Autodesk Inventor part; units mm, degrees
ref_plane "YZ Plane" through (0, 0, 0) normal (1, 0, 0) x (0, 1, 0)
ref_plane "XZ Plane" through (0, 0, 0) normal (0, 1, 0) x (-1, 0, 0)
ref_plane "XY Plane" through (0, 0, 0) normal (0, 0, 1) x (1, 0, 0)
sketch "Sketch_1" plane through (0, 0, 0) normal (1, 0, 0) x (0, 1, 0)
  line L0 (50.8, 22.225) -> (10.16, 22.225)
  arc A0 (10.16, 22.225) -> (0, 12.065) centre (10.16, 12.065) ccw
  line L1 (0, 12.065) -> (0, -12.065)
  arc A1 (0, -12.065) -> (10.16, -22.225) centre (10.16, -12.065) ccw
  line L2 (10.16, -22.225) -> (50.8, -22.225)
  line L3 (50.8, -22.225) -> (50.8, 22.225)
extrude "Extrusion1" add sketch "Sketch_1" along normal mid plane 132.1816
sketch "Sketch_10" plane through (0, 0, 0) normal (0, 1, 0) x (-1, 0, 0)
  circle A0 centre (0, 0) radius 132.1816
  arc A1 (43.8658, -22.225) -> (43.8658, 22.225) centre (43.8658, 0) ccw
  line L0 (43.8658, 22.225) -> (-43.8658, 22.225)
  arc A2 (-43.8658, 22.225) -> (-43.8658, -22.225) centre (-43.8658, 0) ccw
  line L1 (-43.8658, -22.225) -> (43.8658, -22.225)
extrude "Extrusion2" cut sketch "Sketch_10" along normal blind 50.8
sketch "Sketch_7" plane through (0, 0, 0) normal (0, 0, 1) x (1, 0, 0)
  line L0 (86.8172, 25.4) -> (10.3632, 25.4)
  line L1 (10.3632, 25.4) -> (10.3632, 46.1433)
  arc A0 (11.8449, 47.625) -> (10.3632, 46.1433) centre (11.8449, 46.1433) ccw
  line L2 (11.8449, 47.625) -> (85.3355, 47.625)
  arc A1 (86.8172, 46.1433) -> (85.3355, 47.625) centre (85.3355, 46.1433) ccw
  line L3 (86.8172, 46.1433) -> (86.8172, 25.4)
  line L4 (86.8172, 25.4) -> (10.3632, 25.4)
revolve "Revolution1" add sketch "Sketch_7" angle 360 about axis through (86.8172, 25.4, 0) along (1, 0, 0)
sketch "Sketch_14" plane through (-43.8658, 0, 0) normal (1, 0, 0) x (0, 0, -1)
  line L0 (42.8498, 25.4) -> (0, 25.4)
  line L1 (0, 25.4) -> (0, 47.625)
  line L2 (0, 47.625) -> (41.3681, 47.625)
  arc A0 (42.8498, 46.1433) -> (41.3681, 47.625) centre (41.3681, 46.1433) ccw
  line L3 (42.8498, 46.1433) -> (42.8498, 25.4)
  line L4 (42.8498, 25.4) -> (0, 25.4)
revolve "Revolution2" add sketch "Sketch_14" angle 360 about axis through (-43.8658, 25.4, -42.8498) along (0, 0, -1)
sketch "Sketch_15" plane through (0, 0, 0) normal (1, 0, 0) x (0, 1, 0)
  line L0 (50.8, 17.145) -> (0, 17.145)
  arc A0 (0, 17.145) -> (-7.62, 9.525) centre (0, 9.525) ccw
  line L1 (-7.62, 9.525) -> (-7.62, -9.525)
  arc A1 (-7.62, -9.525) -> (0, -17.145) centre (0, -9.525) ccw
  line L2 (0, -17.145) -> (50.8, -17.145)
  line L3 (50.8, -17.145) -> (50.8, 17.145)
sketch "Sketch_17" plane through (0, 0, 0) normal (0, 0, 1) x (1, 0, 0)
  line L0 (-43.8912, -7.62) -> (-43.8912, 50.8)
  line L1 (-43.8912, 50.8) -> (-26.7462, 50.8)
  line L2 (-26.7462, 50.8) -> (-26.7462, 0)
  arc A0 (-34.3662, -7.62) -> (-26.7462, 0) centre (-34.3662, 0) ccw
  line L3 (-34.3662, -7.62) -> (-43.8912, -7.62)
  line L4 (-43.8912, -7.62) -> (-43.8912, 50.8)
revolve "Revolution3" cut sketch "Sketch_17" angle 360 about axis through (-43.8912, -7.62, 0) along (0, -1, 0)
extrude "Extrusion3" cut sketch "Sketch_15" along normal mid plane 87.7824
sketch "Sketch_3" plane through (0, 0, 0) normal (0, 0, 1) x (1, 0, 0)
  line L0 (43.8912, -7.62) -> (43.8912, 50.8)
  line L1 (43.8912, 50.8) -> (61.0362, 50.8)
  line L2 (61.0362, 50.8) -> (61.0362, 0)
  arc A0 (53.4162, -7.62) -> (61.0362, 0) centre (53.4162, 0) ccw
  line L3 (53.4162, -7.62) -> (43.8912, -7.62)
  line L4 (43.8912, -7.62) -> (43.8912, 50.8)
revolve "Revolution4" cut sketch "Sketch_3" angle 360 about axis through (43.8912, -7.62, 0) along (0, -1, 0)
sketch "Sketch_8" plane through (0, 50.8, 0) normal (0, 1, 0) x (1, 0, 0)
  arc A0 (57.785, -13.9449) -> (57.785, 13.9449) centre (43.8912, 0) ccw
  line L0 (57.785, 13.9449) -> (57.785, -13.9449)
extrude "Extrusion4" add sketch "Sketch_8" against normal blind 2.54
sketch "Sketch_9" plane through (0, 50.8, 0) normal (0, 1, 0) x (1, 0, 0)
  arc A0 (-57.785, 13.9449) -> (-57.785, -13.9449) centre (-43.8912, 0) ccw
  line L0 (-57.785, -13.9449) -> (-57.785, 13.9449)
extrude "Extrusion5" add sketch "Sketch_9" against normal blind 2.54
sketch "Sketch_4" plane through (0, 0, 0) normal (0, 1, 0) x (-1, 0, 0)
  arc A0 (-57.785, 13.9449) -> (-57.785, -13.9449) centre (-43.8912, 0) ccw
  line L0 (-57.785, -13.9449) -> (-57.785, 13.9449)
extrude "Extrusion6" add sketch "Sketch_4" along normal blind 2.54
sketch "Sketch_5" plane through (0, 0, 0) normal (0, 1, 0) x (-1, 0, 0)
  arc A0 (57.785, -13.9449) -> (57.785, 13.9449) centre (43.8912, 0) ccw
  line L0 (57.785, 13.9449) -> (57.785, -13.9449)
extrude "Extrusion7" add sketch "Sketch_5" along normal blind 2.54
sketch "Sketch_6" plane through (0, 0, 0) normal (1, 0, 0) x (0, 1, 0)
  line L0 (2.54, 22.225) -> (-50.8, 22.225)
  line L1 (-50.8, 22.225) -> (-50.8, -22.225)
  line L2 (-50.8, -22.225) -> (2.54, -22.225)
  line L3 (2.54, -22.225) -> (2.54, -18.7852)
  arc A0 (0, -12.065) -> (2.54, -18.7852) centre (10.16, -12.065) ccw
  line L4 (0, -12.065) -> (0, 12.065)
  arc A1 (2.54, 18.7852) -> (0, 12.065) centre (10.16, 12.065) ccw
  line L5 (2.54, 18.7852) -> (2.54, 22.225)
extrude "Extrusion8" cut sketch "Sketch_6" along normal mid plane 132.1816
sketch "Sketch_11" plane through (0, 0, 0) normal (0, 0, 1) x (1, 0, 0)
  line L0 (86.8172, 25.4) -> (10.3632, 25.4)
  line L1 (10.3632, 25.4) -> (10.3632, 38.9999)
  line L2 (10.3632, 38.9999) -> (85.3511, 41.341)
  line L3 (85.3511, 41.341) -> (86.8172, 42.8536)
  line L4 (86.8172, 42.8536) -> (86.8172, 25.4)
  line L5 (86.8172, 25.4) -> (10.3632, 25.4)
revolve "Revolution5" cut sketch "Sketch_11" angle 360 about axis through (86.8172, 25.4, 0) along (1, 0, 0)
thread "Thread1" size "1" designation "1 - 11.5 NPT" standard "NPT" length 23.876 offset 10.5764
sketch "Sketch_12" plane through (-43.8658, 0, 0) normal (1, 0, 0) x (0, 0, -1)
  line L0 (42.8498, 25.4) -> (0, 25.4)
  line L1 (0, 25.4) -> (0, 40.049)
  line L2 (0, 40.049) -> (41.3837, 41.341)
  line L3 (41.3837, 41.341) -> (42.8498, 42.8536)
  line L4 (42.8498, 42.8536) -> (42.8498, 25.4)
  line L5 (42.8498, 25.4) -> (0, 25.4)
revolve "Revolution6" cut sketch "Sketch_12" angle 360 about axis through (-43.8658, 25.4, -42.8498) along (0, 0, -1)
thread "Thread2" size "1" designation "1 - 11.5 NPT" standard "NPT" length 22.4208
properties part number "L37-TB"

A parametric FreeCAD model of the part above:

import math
import FreeCAD as App
import Part
import Sketcher

V = App.Vector
Q = App.Units.Quantity


def add_polygon(sketch, points):
    """Adds a closed chain of lines whose ends are joined by coincident constraints."""
    first, n = sketch.GeometryCount, len(points)
    for a, b in zip(points, points[1:] + points[:1]):
        sketch.addGeometry(Part.LineSegment(App.Vector(*a, 0), App.Vector(*b, 0)), False)
    for i in range(n):
        sketch.addConstraint(Sketcher.Constraint("Coincident", first + i, 2, first + (i + 1) % n, 1))

doc = App.newDocument("Part")
body = doc.addObject("PartDesign::Body", "Body")

# Sketch on YZ plane
sketch1 = body.newObject("Sketcher::SketchObject", "Sketch")
sketch1.AttachmentSupport = (doc.getObject("YZ_Plane"), [""])
sketch1.MapMode = "FlatFace"
sketch1.addGeometry([
    Part.LineSegment(V(51, -22, 0), V(51, 22, 0)),  # 0
    Part.LineSegment(V(51, 22, 0), V(10, 22, 0)),  # 1
    Part.ArcOfCircle(Part.Circle(V(10, 12, 0), V(0, 0, 1), 10), math.radians(90), math.radians(180)),  # 2
    Part.LineSegment(V(0, 12, 0), V(0, -12, 0)),  # 3
    Part.ArcOfCircle(Part.Circle(V(10, -12, 0), V(0, 0, 1), 10), math.radians(180), math.radians(270)),  # 4
    Part.LineSegment(V(10, -22, 0), V(51, -22, 0)),  # 5
], False)
sketch1.addConstraint([
    Sketcher.Constraint("Coincident", 0, 2, 1, 1),
    Sketcher.Constraint("Tangent", 1, 2, 2, 1),
    Sketcher.Constraint("Tangent", 2, 2, 3, 1),
    Sketcher.Constraint("Tangent", 3, 2, 4, 1),
    Sketcher.Constraint("Tangent", 4, 2, 5, 1),
    Sketcher.Constraint("Coincident", 5, 2, 0, 1),
    Sketcher.Constraint("Vertical", 0),
    Sketcher.Constraint("Horizontal", 1),
    Sketcher.Constraint("Vertical", 3),
    Sketcher.Constraint("Horizontal", 5),
    Sketcher.Constraint("Equal", 2, 4),
    Sketcher.Constraint("Symmetric", 2, 2, 3, 2, -1, 1),
    Sketcher.Constraint("Radius", 2, Q("0.4 in")),
    Sketcher.Constraint("DistanceX", 1, 2, 1, 1, Q("1.6 in")),
    Sketcher.Constraint("DistanceY", 0, 1, 0, 2, Q("1.75 in")),
])
pad1 = body.newObject("PartDesign::Pad", "Pad")
pad1.Profile = sketch1
pad1.Length = Q("5.204 in")
pad1.Midplane = True

# Sketch on XZ plane
sketch2 = body.newObject("Sketcher::SketchObject", "Sketch001")
sketch2.AttachmentSupport = (doc.getObject("XZ_Plane"), [""])
sketch2.MapMode = "FlatFace"
sketch2.addGeometry([
    Part.Circle(V(0, 0, 0), V(0, 0, 1), 132),  # 0
    Part.ArcOfCircle(Part.Circle(V(-44, 0, 0), V(0, 0, 1), 22), math.radians(90), math.radians(270)),  # 1
    Part.LineSegment(V(-44, -22, 0), V(44, -22, 0)),  # 2
    Part.ArcOfCircle(Part.Circle(V(44, 0, 0), V(0, 0, 1), 22), math.radians(-90), math.radians(90)),  # 3
    Part.LineSegment(V(44, 22, 0), V(-44, 22, 0)),  # 4
], False)
sketch2.addConstraint([
    Sketcher.Constraint("Tangent", 1, 2, 2, 1),
    Sketcher.Constraint("Tangent", 2, 2, 3, 1),
    Sketcher.Constraint("Tangent", 3, 2, 4, 1),
    Sketcher.Constraint("Tangent", 4, 2, 1, 1),
    Sketcher.Constraint("Horizontal", 2),
    Sketcher.Constraint("Horizontal", 4),
    Sketcher.Constraint("Coincident", 0, 3, -1, 1),
    Sketcher.Constraint("Symmetric", 1, 3, 3, 3, -1, 1),
    Sketcher.Constraint("Diameter", 0, Q("10.408 in")),
    Sketcher.Constraint("Radius", 1, Q("0.875 in")),
    Sketcher.Constraint("DistanceX", 2, 1, 2, 2, Q("3.454 in")),
])
pocket1 = body.newObject("PartDesign::Pocket", "Pocket")
pocket1.Profile = sketch2
pocket1.Length = Q("2 in")

# Sketch on XY plane
sketch3 = body.newObject("Sketcher::SketchObject", "Sketch002")
sketch3.AttachmentSupport = (doc.getObject("XY_Plane"), [""])
sketch3.MapMode = "FlatFace"
sketch3.addGeometry([
    Part.LineSegment(V(10.4, 25.4, 0), V(86.8, 25.4, 0)),  # 0
    Part.LineSegment(V(86.8, 25.4, 0), V(86.8, 46.1, 0)),  # 1
    Part.ArcOfCircle(Part.Circle(V(85.3, 46.1, 0), V(0, 0, 1), 1.5), math.radians(0), math.radians(90)),  # 2
    Part.LineSegment(V(85.3, 47.6, 0), V(11.8, 47.6, 0)),  # 3
    Part.ArcOfCircle(Part.Circle(V(11.8, 46.1, 0), V(0, 0, 1), 1.5), math.radians(90), math.radians(180)),  # 4
    Part.LineSegment(V(10.4, 46.1, 0), V(10.4, 25.4, 0)),  # 5
], False)
sketch3.addGeometry(Part.LineSegment(V(10.4, 25.4, 0), V(86.8, 25.4, 0)), True)  # axis
sketch3.addConstraint([
    Sketcher.Constraint("Coincident", 0, 2, 1, 1),
    Sketcher.Constraint("Tangent", 1, 2, 2, 1),
    Sketcher.Constraint("Tangent", 2, 2, 3, 1),
    Sketcher.Constraint("Tangent", 3, 2, 4, 1),
    Sketcher.Constraint("Tangent", 4, 2, 5, 1),
    Sketcher.Constraint("Coincident", 5, 2, 0, 1),
    Sketcher.Constraint("Horizontal", 0),
    Sketcher.Constraint("Vertical", 1),
    Sketcher.Constraint("Horizontal", 3),
    Sketcher.Constraint("Vertical", 5),
    Sketcher.Constraint("Horizontal", 6),
    Sketcher.Constraint("Coincident", 6, 1, 5, 2),
    Sketcher.Constraint("Equal", 2, 4),
    Sketcher.Constraint("Vertical", 1, 2, 6, 2),
    Sketcher.Constraint("DistanceY", -1, 1, 0, 2, Q("1 in")),
    Sketcher.Constraint("DistanceX", 0, 1, 0, 2, Q("3.01 in")),
    Sketcher.Constraint("Radius", 2, Q("1.4817 mm")),
    Sketcher.Constraint("DistanceX", -1, 1, 0, 2, Q("3.418 in")),
    Sketcher.Constraint("DistanceY", -1, 1, 2, 2, Q("1.875 in")),
])
revolution = body.newObject("PartDesign::Revolution", "Revolution")
revolution.Profile = sketch3
revolution.ReferenceAxis = (sketch3, ["Axis0"])
revolution.Angle = 360

# Sketch on YZ plane
sketch4 = body.newObject("Sketcher::SketchObject", "Sketch003")
sketch4.AttachmentSupport = (doc.getObject("YZ_Plane"), [""])
sketch4.MapMode = "FlatFace"
sketch4.AttachmentOffset = App.Placement(V(0, 0, -1.727 * 25.4), App.Rotation())
sketch4.addGeometry([
    Part.LineSegment(V(25.4, 0, 0), V(25.4, -42.8, 0)),  # 0
    Part.LineSegment(V(25.4, -42.8, 0), V(46.1, -42.8, 0)),  # 1
    Part.ArcOfCircle(Part.Circle(V(46.1, -41.4, 0), V(0, 0, 1), 1.5), math.radians(-90), math.radians(0)),  # 2
    Part.LineSegment(V(47.6, -41.4, 0), V(47.6, 0, 0)),  # 3
    Part.LineSegment(V(47.6, 0, 0), V(25.4, 0, 0)),  # 4
], False)
sketch4.addGeometry(Part.LineSegment(V(25.4, 0, 0), V(25.4, -42.8, 0)), True)  # axis
sketch4.addConstraint([
    Sketcher.Constraint("Coincident", 0, 2, 1, 1),
    Sketcher.Constraint("Tangent", 1, 2, 2, 1),
    Sketcher.Constraint("Tangent", 2, 2, 3, 1),
    Sketcher.Constraint("Coincident", 3, 2, 4, 1),
    Sketcher.Constraint("Coincident", 4, 2, 0, 1),
    Sketcher.Constraint("Vertical", 0),
    Sketcher.Constraint("Horizontal", 1),
    Sketcher.Constraint("Vertical", 3),
    Sketcher.Constraint("Horizontal", 4),
    Sketcher.Constraint("Vertical", 5),
    Sketcher.Constraint("Coincident", 5, 1, 4, 2),
    Sketcher.Constraint("PointOnObject", 3, 2, -1),
    Sketcher.Constraint("Horizontal", 1, 2, 5, 2),
    Sketcher.Constraint("DistanceX", -1, 1, 0, 2, Q("1 in")),
    Sketcher.Constraint("DistanceX", 4, 2, 4, 1, Q("0.875 in")),
    Sketcher.Constraint("DistanceY", 0, 2, 0, 1, Q("1.687 in")),
    Sketcher.Constraint("Radius", 2, Q("1.4817 mm")),
])
revolution2 = body.newObject("PartDesign::Revolution", "Revolution001")
revolution2.Profile = sketch4
revolution2.ReferenceAxis = (sketch4, ["Axis0"])
revolution2.Angle = 360

# Sketch on XY plane
sketch5 = body.newObject("Sketcher::SketchObject", "Sketch004")
sketch5.AttachmentSupport = (doc.getObject("XY_Plane"), [""])
sketch5.MapMode = "FlatFace"
sketch5.addGeometry([
    Part.LineSegment(V(-44, 51, 0), V(-44, -8, 0)),  # 0
    Part.LineSegment(V(-44, -8, 0), V(-34, -8, 0)),  # 1
    Part.ArcOfCircle(Part.Circle(V(-34, 0, 0), V(0, 0, 1), 8), math.radians(-90), math.radians(0)),  # 2
    Part.LineSegment(V(-27, 0, 0), V(-27, 51, 0)),  # 3
    Part.LineSegment(V(-27, 51, 0), V(-44, 51, 0)),  # 4
], False)
sketch5.addGeometry(Part.LineSegment(V(-44, 51, 0), V(-44, -8, 0)), True)  # axis
sketch5.addConstraint([
    Sketcher.Constraint("Coincident", 0, 2, 1, 1),
    Sketcher.Constraint("Tangent", 1, 2, 2, 1),
    Sketcher.Constraint("Tangent", 2, 2, 3, 1),
    Sketcher.Constraint("Coincident", 3, 2, 4, 1),
    Sketcher.Constraint("Coincident", 4, 2, 0, 1),
    Sketcher.Constraint("Vertical", 0),
    Sketcher.Constraint("Horizontal", 1),
    Sketcher.Constraint("Vertical", 3),
    Sketcher.Constraint("Horizontal", 4),
    Sketcher.Constraint("Vertical", 5),
    Sketcher.Constraint("Coincident", 5, 1, 4, 2),
    Sketcher.Constraint("PointOnObject", 2, 3, -1),
    Sketcher.Constraint("Horizontal", 1, 2, 5, 2),
    Sketcher.Constraint("Radius", 2, Q("0.3 in")),
    Sketcher.Constraint("DistanceY", 3, 1, 3, 2, Q("2 in")),
    Sketcher.Constraint("DistanceX", 1, 1, 1, 2, Q("0.375 in")),
    Sketcher.Constraint("DistanceX", 2, 3, -1, 1, Q("1.353 in")),
])
groove = body.newObject("PartDesign::Groove", "Groove")
groove.Profile = sketch5
groove.ReferenceAxis = (sketch5, ["Axis0"])
groove.Angle = 360

# Sketch on YZ plane
sketch6 = body.newObject("Sketcher::SketchObject", "Sketch005")
sketch6.AttachmentSupport = (doc.getObject("YZ_Plane"), [""])
sketch6.MapMode = "FlatFace"
sketch6.addGeometry([
    Part.LineSegment(V(51, -17, 0), V(51, 17, 0)),  # 0
    Part.LineSegment(V(51, 17, 0), V(0, 17, 0)),  # 1
    Part.ArcOfCircle(Part.Circle(V(0, 10, 0), V(0, 0, 1), 8), math.radians(90), math.radians(180)),  # 2
    Part.LineSegment(V(-8, 10, 0), V(-8, -10, 0)),  # 3
    Part.ArcOfCircle(Part.Circle(V(0, -10, 0), V(0, 0, 1), 8), math.radians(180), math.radians(270)),  # 4
    Part.LineSegment(V(0, -17, 0), V(51, -17, 0)),  # 5
], False)
sketch6.addConstraint([
    Sketcher.Constraint("Coincident", 0, 2, 1, 1),
    Sketcher.Constraint("Tangent", 1, 2, 2, 1),
    Sketcher.Constraint("Tangent", 2, 2, 3, 1),
    Sketcher.Constraint("Tangent", 3, 2, 4, 1),
    Sketcher.Constraint("Tangent", 4, 2, 5, 1),
    Sketcher.Constraint("Coincident", 5, 2, 0, 1),
    Sketcher.Constraint("Vertical", 0),
    Sketcher.Constraint("Horizontal", 1),
    Sketcher.Constraint("Vertical", 3),
    Sketcher.Constraint("Horizontal", 5),
    Sketcher.Constraint("Equal", 2, 4),
    Sketcher.Constraint("Symmetric", 2, 3, 4, 3, -1, 1),
    Sketcher.Constraint("Radius", 2, Q("0.3 in")),
    Sketcher.Constraint("DistanceX", 1, 2, 1, 1, Q("2 in")),
    Sketcher.Constraint("DistanceY", 0, 1, 0, 2, Q("1.35 in")),
])
pocket2 = body.newObject("PartDesign::Pocket", "Pocket001")
pocket2.Profile = sketch6
pocket2.Length = Q("3.456 in")
pocket2.Midplane = True

# Sketch on XY plane
sketch7 = body.newObject("Sketcher::SketchObject", "Sketch006")
sketch7.AttachmentSupport = (doc.getObject("XY_Plane"), [""])
sketch7.MapMode = "FlatFace"
sketch7.addGeometry([
    Part.LineSegment(V(44, 51, 0), V(44, -8, 0)),  # 0
    Part.LineSegment(V(44, -8, 0), V(53, -8, 0)),  # 1
    Part.ArcOfCircle(Part.Circle(V(53, 0, 0), V(0, 0, 1), 8), math.radians(-90), math.radians(0)),  # 2
    Part.LineSegment(V(61, 0, 0), V(61, 51, 0)),  # 3
    Part.LineSegment(V(61, 51, 0), V(44, 51, 0)),  # 4
], False)
sketch7.addGeometry(Part.LineSegment(V(44, 51, 0), V(44, -8, 0)), True)  # axis
sketch7.addConstraint([
    Sketcher.Constraint("Coincident", 0, 2, 1, 1),
    Sketcher.Constraint("Tangent", 1, 2, 2, 1),
    Sketcher.Constraint("Tangent", 2, 2, 3, 1),
    Sketcher.Constraint("Coincident", 3, 2, 4, 1),
    Sketcher.Constraint("Coincident", 4, 2, 0, 1),
    Sketcher.Constraint("Vertical", 0),
    Sketcher.Constraint("Horizontal", 1),
    Sketcher.Constraint("Vertical", 3),
    Sketcher.Constraint("Horizontal", 4),
    Sketcher.Constraint("Vertical", 5),
    Sketcher.Constraint("Coincident", 5, 1, 4, 2),
    Sketcher.Constraint("PointOnObject", 2, 3, -1),
    Sketcher.Constraint("Horizontal", 1, 2, 5, 2),
    Sketcher.Constraint("Radius", 2, Q("0.3 in")),
    Sketcher.Constraint("DistanceY", 3, 1, 3, 2, Q("2 in")),
    Sketcher.Constraint("DistanceX", 1, 1, 1, 2, Q("0.375 in")),
    Sketcher.Constraint("DistanceX", -1, 1, 2, 3, Q("2.103 in")),
])
groove2 = body.newObject("PartDesign::Groove", "Groove001")
groove2.Profile = sketch7
groove2.ReferenceAxis = (sketch7, ["Axis0"])
groove2.Angle = 360

# Sketch on XZ plane
sketch8 = body.newObject("Sketcher::SketchObject", "Sketch007")
sketch8.AttachmentSupport = (doc.getObject("XZ_Plane"), [""])
sketch8.MapMode = "FlatFace"
sketch8.AttachmentOffset = App.Placement(V(0, 0, -2 * 25.4), App.Rotation())
sketch8.addGeometry([
    Part.LineSegment(V(58, -14, 0), V(58, 14, 0)),
    Part.ArcOfCircle(Part.Circle(V(44, 0, 0), V(0, 0, 1), 20), math.radians(-45), math.radians(45)),
], False)
sketch8.addConstraint([
    Sketcher.Constraint("Coincident", 0, 1, 1, 1),
    Sketcher.Constraint("Coincident", 1, 2, 0, 2),
    Sketcher.Constraint("Vertical", 0),
    Sketcher.Constraint("PointOnObject", 1, 3, -1),
    Sketcher.Constraint("Radius", 1, Q("0.775 in")),
    Sketcher.Constraint("DistanceX", -1, 1, 1, 3, Q("1.728 in")),
    Sketcher.Constraint("DistanceX", -1, 1, 0, 1, Q("2.275 in")),
])
pad2 = body.newObject("PartDesign::Pad", "Pad001")
pad2.Profile = sketch8
pad2.Length = Q("0.1 in")

# Sketch on XZ plane
sketch9 = body.newObject("Sketcher::SketchObject", "Sketch008")
sketch9.AttachmentSupport = (doc.getObject("XZ_Plane"), [""])
sketch9.MapMode = "FlatFace"
sketch9.AttachmentOffset = App.Placement(V(0, 0, -2 * 25.4), App.Rotation())
sketch9.addGeometry([
    Part.LineSegment(V(-58, 14, 0), V(-58, -14, 0)),
    Part.ArcOfCircle(Part.Circle(V(-44, 0, 0), V(0, 0, 1), 20), math.radians(135), math.radians(225)),
], False)
sketch9.addConstraint([
    Sketcher.Constraint("Coincident", 0, 1, 1, 1),
    Sketcher.Constraint("Coincident", 1, 2, 0, 2),
    Sketcher.Constraint("Vertical", 0),
    Sketcher.Constraint("PointOnObject", 1, 3, -1),
    Sketcher.Constraint("Radius", 1, Q("0.775 in")),
    Sketcher.Constraint("DistanceX", 1, 3, -1, 1, Q("1.728 in")),
    Sketcher.Constraint("DistanceX", 0, 1, -1, 1, Q("2.275 in")),
])
pad3 = body.newObject("PartDesign::Pad", "Pad002")
pad3.Profile = sketch9
pad3.Length = Q("0.1 in")

# Sketch on XZ plane
sketch10 = body.newObject("Sketcher::SketchObject", "Sketch009")
sketch10.AttachmentSupport = (doc.getObject("XZ_Plane"), [""])
sketch10.MapMode = "FlatFace"
sketch10.addGeometry([
    Part.LineSegment(V(58, -14, 0), V(58, 14, 0)),
    Part.ArcOfCircle(Part.Circle(V(44, 0, 0), V(0, 0, 1), 20), math.radians(-45), math.radians(45)),
], False)
sketch10.addConstraint([
    Sketcher.Constraint("Coincident", 0, 1, 1, 1),
    Sketcher.Constraint("Coincident", 1, 2, 0, 2),
    Sketcher.Constraint("Vertical", 0),
    Sketcher.Constraint("PointOnObject", 1, 3, -1),
    Sketcher.Constraint("Radius", 1, Q("0.775 in")),
    Sketcher.Constraint("DistanceX", -1, 1, 1, 3, Q("1.728 in")),
    Sketcher.Constraint("DistanceX", -1, 1, 0, 1, Q("2.275 in")),
])
pad4 = body.newObject("PartDesign::Pad", "Pad003")
pad4.Profile = sketch10
pad4.Length = Q("0.1 in")
pad4.Reversed = True

# Sketch on XZ plane
sketch11 = body.newObject("Sketcher::SketchObject", "Sketch010")
sketch11.AttachmentSupport = (doc.getObject("XZ_Plane"), [""])
sketch11.MapMode = "FlatFace"
sketch11.addGeometry([
    Part.LineSegment(V(-58, 14, 0), V(-58, -14, 0)),
    Part.ArcOfCircle(Part.Circle(V(-44, 0, 0), V(0, 0, 1), 20), math.radians(135), math.radians(225)),
], False)
sketch11.addConstraint([
    Sketcher.Constraint("Coincident", 0, 1, 1, 1),
    Sketcher.Constraint("Coincident", 1, 2, 0, 2),
    Sketcher.Constraint("Vertical", 0),
    Sketcher.Constraint("PointOnObject", 1, 3, -1),
    Sketcher.Constraint("Radius", 1, Q("0.775 in")),
    Sketcher.Constraint("DistanceX", 1, 3, -1, 1, Q("1.728 in")),
    Sketcher.Constraint("DistanceX", 0, 1, -1, 1, Q("2.275 in")),
])
pad5 = body.newObject("PartDesign::Pad", "Pad004")
pad5.Profile = sketch11
pad5.Length = Q("0.1 in")
pad5.Reversed = True

# Sketch on YZ plane
sketch12 = body.newObject("Sketcher::SketchObject", "Sketch011")
sketch12.AttachmentSupport = (doc.getObject("YZ_Plane"), [""])
sketch12.MapMode = "FlatFace"
sketch12.addGeometry([
    Part.LineSegment(V(2.5, 18.8, 0), V(2.5, 22.2, 0)),  # 0
    Part.LineSegment(V(2.5, 22.2, 0), V(-50.8, 22.2, 0)),  # 1
    Part.LineSegment(V(-50.8, 22.2, 0), V(-50.8, -22.2, 0)),  # 2
    Part.LineSegment(V(-50.8, -22.2, 0), V(2.5, -22.2, 0)),  # 3
    Part.LineSegment(V(2.5, -22.2, 0), V(2.5, -18.8, 0)),  # 4
    Part.ArcOfCircle(Part.Circle(V(10.2, -12.1, 0), V(0, 0, 1), 10.2), math.radians(180), math.radians(221)),  # 5
    Part.LineSegment(V(0, -12.1, 0), V(0, 12.1, 0)),  # 6
    Part.ArcOfCircle(Part.Circle(V(10.2, 12.1, 0), V(0, 0, 1), 10.2), math.radians(139), math.radians(180)),  # 7
], False)
sketch12.addConstraint([
    Sketcher.Constraint("Coincident", 0, 2, 1, 1),
    Sketcher.Constraint("Coincident", 1, 2, 2, 1),
    Sketcher.Constraint("Coincident", 2, 2, 3, 1),
    Sketcher.Constraint("Coincident", 3, 2, 4, 1),
    Sketcher.Constraint("Coincident", 4, 2, 5, 2),
    Sketcher.Constraint("Tangent", 5, 1, 6, 1),
    Sketcher.Constraint("Tangent", 6, 2, 7, 2),
    Sketcher.Constraint("Coincident", 7, 1, 0, 1),
    Sketcher.Constraint("Vertical", 0),
    Sketcher.Constraint("Horizontal", 1),
    Sketcher.Constraint("Vertical", 2),
    Sketcher.Constraint("Horizontal", 3),
    Sketcher.Constraint("Vertical", 4),
    Sketcher.Constraint("Vertical", 6),
    Sketcher.Constraint("Equal", 5, 7),
    Sketcher.Constraint("Symmetric", 5, 1, 6, 2, -1, 1),
    Sketcher.Constraint("Symmetric", 0, 2, 3, 2, -1),
    Sketcher.Constraint("Radius", 5, Q("0.4 in")),
    Sketcher.Constraint("DistanceX", 1, 2, 1, 1, Q("2.1 in")),
    Sketcher.Constraint("DistanceX", 1, 2, -1, 1, Q("2 in")),
    Sketcher.Constraint("DistanceY", 2, 2, 2, 1, Q("1.75 in")),
    Sketcher.Constraint("DistanceY", 6, 1, 6, 2, Q("0.95 in")),
])
pocket3 = body.newObject("PartDesign::Pocket", "Pocket002")
pocket3.Profile = sketch12
pocket3.Length = Q("5.204 in")
pocket3.Midplane = True

# Sketch on XY plane
sketch13 = body.newObject("Sketcher::SketchObject", "Sketch012")
sketch13.AttachmentSupport = (doc.getObject("XY_Plane"), [""])
sketch13.MapMode = "FlatFace"
add_polygon(sketch13, [(10.4, 25.4), (86.8, 25.4), (86.8, 42.9), (85.4, 41.3), (10.4, 39)])  # lines 0-4
sketch13.addGeometry(Part.LineSegment(V(10.4, 25.4, 0), V(86.8, 25.4, 0)), True)  # axis
sketch13.addConstraint([
    Sketcher.Constraint("Horizontal", 0),
    Sketcher.Constraint("Vertical", 1),
    Sketcher.Constraint("Vertical", 4),
    Sketcher.Constraint("Horizontal", 5),
    Sketcher.Constraint("Coincident", 5, 1, 4, 2),
    Sketcher.Constraint("Vertical", 1, 2, 5, 2),
    Sketcher.Constraint("DistanceY", -1, 1, 0, 2, Q("1 in")),
    Sketcher.Constraint("DistanceX", 0, 1, 0, 2, Q("3.01 in")),
    Sketcher.Constraint("DistanceX", -1, 1, 0, 2, Q("3.418 in")),
    Sketcher.Constraint("DistanceY", 1, 1, 1, 2, Q("17.4536 mm")),
    Sketcher.Constraint("DistanceY", 4, 2, 4, 1, Q("13.6 mm")),
    Sketcher.Constraint("DistanceY", -1, 1, 2, 2, Q("1.6276 in")),
    Sketcher.Constraint("Distance", 2, Q("2.1065 mm")),
])
groove3 = body.newObject("PartDesign::Groove", "Groove002")
groove3.Profile = sketch13
groove3.ReferenceAxis = (sketch13, ["Axis0"])
groove3.Angle = 360

# Sketch on YZ plane
sketch14 = body.newObject("Sketcher::SketchObject", "Sketch013")
sketch14.AttachmentSupport = (doc.getObject("YZ_Plane"), [""])
sketch14.MapMode = "FlatFace"
sketch14.AttachmentOffset = App.Placement(V(0, 0, -1.727 * 25.4), App.Rotation())
add_polygon(sketch14, [(25.4, 0), (25.4, -42.8), (42.9, -42.8), (41.3, -41.4), (40, 0)])  # lines 0-4
sketch14.addGeometry(Part.LineSegment(V(25.4, 0, 0), V(25.4, -42.8, 0)), True)  # axis
sketch14.addConstraint([
    Sketcher.Constraint("Vertical", 0),
    Sketcher.Constraint("Horizontal", 1),
    Sketcher.Constraint("Horizontal", 4),
    Sketcher.Constraint("Vertical", 5),
    Sketcher.Constraint("Coincident", 5, 1, 4, 2),
    Sketcher.Constraint("PointOnObject", 3, 2, -1),
    Sketcher.Constraint("Horizontal", 1, 2, 5, 2),
    Sketcher.Constraint("DistanceX", -1, 1, 0, 2, Q("1 in")),
    Sketcher.Constraint("DistanceY", 0, 2, 0, 1, Q("1.687 in")),
    Sketcher.Constraint("DistanceX", 1, 1, 1, 2, Q("17.4536 mm")),
    Sketcher.Constraint("DistanceX", 4, 2, 4, 1, Q("14.649 mm")),
    Sketcher.Constraint("DistanceX", -1, 1, 2, 2, Q("1.6276 in")),
    Sketcher.Constraint("Distance", 2, Q("2.1065 mm")),
])
groove4 = body.newObject("PartDesign::Groove", "Groove003")
groove4.Profile = sketch14
groove4.ReferenceAxis = (sketch14, ["Axis0"])
groove4.Angle = 360

doc.recompute()
